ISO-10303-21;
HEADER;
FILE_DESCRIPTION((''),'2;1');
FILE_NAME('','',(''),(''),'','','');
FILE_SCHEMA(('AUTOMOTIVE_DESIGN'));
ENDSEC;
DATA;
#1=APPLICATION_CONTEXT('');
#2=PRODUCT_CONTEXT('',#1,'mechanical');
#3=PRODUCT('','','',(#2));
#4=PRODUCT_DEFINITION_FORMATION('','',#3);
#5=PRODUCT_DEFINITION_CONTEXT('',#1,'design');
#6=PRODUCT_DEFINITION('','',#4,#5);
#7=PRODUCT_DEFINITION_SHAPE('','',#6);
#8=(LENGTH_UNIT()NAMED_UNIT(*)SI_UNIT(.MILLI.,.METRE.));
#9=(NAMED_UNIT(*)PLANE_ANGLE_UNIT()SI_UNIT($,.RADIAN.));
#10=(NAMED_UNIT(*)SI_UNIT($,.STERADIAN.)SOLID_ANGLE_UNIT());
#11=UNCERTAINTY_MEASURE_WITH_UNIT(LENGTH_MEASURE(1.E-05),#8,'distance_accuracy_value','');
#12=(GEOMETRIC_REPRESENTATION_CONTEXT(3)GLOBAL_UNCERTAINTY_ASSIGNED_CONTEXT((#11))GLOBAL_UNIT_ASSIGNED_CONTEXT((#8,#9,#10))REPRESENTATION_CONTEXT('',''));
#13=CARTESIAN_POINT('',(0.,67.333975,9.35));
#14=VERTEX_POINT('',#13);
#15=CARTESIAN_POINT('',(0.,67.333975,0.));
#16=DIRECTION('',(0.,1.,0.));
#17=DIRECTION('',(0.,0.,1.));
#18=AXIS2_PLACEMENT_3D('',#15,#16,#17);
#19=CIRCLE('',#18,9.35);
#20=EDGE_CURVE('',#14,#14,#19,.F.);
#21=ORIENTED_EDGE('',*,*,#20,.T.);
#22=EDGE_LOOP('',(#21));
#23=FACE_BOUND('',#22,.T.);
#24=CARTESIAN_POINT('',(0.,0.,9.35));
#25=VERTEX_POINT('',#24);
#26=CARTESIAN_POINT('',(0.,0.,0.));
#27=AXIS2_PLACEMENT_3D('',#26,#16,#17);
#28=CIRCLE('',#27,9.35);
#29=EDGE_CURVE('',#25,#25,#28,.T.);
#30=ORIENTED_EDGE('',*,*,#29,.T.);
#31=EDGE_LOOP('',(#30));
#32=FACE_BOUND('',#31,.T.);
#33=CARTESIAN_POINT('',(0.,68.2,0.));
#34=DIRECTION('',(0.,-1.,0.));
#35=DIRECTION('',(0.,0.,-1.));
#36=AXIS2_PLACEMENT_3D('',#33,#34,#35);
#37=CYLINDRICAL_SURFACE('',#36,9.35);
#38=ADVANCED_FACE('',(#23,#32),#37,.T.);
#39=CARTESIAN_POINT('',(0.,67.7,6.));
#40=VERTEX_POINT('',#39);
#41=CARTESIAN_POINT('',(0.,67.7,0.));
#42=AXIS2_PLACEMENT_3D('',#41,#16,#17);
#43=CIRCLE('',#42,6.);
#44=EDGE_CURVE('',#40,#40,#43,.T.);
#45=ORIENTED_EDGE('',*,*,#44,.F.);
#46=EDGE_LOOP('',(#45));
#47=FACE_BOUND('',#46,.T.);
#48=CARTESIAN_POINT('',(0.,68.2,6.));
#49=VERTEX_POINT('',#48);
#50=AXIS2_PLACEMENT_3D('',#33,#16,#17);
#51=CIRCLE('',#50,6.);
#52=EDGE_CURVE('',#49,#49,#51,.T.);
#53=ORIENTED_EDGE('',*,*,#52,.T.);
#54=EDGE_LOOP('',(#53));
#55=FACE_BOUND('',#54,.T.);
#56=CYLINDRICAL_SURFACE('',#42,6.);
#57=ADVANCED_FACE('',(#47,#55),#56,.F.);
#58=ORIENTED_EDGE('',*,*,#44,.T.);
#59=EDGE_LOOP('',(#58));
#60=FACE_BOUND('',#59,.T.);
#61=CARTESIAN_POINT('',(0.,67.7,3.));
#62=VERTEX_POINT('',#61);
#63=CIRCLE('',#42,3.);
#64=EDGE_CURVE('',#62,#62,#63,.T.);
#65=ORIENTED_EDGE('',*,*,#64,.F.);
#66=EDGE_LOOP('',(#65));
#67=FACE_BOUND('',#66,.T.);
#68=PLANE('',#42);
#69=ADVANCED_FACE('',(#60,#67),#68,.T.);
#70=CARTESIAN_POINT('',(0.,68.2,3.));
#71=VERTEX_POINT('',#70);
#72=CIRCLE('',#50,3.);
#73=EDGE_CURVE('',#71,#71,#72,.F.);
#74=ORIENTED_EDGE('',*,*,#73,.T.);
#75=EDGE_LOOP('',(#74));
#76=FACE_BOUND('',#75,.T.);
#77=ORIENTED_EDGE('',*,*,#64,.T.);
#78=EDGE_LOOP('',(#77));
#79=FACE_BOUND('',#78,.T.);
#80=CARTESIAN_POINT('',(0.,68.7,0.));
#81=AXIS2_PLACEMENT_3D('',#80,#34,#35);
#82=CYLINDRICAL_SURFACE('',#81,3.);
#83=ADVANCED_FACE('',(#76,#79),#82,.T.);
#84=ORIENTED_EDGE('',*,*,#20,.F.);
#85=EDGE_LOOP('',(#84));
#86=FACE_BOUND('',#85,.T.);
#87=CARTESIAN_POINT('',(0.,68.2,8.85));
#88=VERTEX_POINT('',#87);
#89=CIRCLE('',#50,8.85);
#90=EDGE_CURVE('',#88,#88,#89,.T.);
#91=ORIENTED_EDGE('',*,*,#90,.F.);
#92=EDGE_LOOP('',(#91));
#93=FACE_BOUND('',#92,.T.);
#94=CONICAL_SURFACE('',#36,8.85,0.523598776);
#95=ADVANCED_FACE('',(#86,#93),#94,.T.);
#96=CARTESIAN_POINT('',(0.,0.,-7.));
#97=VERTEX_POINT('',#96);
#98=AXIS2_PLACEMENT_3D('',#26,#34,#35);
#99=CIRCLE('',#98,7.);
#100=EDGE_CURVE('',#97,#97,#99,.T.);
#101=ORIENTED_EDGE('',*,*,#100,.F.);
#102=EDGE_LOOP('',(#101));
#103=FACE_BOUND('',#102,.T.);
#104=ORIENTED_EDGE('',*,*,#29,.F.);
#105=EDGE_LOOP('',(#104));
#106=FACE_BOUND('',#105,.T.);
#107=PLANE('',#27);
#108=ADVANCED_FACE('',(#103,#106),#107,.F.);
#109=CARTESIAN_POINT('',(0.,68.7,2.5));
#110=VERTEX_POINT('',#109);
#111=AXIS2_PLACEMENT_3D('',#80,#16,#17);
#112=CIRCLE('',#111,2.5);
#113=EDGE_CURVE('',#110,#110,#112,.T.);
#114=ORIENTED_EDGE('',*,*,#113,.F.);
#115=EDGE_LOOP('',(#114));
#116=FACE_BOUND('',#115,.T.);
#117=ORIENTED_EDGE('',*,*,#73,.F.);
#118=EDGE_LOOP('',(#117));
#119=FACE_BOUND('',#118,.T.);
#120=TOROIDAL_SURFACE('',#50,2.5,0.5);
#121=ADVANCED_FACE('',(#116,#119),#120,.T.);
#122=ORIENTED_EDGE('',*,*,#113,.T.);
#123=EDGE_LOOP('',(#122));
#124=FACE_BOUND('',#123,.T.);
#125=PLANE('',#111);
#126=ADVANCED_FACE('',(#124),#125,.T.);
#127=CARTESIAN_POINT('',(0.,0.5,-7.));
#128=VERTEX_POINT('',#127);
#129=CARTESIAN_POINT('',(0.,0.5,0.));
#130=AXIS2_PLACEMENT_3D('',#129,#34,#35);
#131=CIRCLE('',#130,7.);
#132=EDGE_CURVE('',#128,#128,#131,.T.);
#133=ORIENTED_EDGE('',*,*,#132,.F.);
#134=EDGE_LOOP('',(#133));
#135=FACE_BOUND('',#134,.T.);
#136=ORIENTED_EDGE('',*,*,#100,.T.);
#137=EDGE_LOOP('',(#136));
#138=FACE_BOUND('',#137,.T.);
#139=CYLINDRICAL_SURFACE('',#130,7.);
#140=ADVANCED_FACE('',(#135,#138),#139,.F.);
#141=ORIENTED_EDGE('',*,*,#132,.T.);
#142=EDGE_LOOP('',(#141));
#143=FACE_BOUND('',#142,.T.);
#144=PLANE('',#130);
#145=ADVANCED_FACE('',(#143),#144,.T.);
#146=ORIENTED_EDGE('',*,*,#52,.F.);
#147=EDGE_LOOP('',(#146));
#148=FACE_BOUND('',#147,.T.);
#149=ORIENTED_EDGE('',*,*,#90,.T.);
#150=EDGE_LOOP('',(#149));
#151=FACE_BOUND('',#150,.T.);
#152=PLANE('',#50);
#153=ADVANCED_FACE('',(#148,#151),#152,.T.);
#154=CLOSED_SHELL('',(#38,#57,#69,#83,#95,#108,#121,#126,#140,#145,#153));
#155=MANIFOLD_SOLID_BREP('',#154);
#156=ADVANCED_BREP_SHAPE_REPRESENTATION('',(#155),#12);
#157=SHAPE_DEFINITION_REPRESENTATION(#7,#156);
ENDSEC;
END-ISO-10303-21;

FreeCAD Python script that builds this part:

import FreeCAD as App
import Part
import Sketcher

V = App.Vector
Q = App.Units.Quantity


def edges_at(feature, points):
    """Names of the edges that pass closest to the given points."""
    edges = feature.Shape.Edges
    near = lambda p: min(range(len(edges)), key=lambda i: edges[i].distToShape(Part.Vertex(*p))[0])
    return sorted({f"Edge{near(p) + 1}" for p in points})

doc = App.newDocument("Part")
body = doc.addObject("PartDesign::Body", "Body")

sketch1 = body.newObject("Sketcher::SketchObject", "Sketch")
sketch1.AttachmentSupport = (doc.getObject("XZ_Plane"), [""])
sketch1.MapMode = "FlatFace"
sketch1.addGeometry(Part.Circle(V(0, 0, 0), V(0, 0, 1), 9), False)
sketch1.addConstraint([
    Sketcher.Constraint("Coincident", 0, 3, -1, 1),
    Sketcher.Constraint("Diameter", 0, Q("18.7 mm")),
])
pad1 = body.newObject("PartDesign::Pad", "Pad")
pad1.Profile = sketch1
pad1.Length = 68.2
pad1.Reversed = True

sketch2 = body.newObject("Sketcher::SketchObject", "Sketch001")
sketch2.AttachmentSupport = (doc.getObject("XZ_Plane"), [""])
sketch2.MapMode = "FlatFace"
sketch2.addGeometry(Part.Circle(V(0, 0, 0), V(0, 0, 1), 7), False)
sketch2.addConstraint([
    Sketcher.Constraint("Coincident", 0, 3, -1, 1),
    Sketcher.Constraint("Diameter", 0, Q("14 mm")),
])
pocket1 = body.newObject("PartDesign::Pocket", "Pocket")
pocket1.Profile = sketch2
pocket1.Length = 0.5

sketch3 = body.newObject("Sketcher::SketchObject", "Sketch002")
sketch3.AttachmentSupport = (doc.getObject("XZ_Plane"), [""])
sketch3.MapMode = "FlatFace"
sketch3.AttachmentOffset = App.Placement(V(0, 0, -68.2), App.Rotation())
sketch3.addGeometry(Part.Circle(V(0, 0, 0), V(0, 0, 1), 6), False)
sketch3.addConstraint([
    Sketcher.Constraint("Coincident", 0, 3, -1, 1),
    Sketcher.Constraint("Diameter", 0, Q("12 mm")),
])
pocket2 = body.newObject("PartDesign::Pocket", "Pocket001")
pocket2.Profile = sketch3
pocket2.Length = 0.5
pocket2.Reversed = True

sketch4 = body.newObject("Sketcher::SketchObject", "Sketch003")
sketch4.AttachmentSupport = (doc.getObject("XZ_Plane"), [""])
sketch4.MapMode = "FlatFace"
sketch4.AttachmentOffset = App.Placement(V(0, 0, -67.7), App.Rotation())
sketch4.addGeometry(Part.Circle(V(0, 0, 0), V(0, 0, 1), 3), False)
sketch4.addConstraint([
    Sketcher.Constraint("Coincident", 0, 3, -1, 1),
    Sketcher.Constraint("Diameter", 0, Q("6 mm")),
])
pad2 = body.newObject("PartDesign::Pad", "Pad001")
pad2.Profile = sketch4
pad2.Length = 1
pad2.Reversed = True
doc.recompute()

fillet = body.newObject("PartDesign::Fillet", "Fillet")
fillet.Base = (pad2, edges_at(pad2, [(0, 68.7, -3)]))
fillet.Radius = 0.5
doc.recompute()

chamfer = body.newObject("PartDesign::Chamfer", "Chamfer")
chamfer.Base = (fillet, edges_at(fillet, [(0, 68.2, -9.35)]))
chamfer.ChamferType = "Two distances"
chamfer.Size = 0.5
chamfer.Size2 = 0.866025

doc.recompute()
